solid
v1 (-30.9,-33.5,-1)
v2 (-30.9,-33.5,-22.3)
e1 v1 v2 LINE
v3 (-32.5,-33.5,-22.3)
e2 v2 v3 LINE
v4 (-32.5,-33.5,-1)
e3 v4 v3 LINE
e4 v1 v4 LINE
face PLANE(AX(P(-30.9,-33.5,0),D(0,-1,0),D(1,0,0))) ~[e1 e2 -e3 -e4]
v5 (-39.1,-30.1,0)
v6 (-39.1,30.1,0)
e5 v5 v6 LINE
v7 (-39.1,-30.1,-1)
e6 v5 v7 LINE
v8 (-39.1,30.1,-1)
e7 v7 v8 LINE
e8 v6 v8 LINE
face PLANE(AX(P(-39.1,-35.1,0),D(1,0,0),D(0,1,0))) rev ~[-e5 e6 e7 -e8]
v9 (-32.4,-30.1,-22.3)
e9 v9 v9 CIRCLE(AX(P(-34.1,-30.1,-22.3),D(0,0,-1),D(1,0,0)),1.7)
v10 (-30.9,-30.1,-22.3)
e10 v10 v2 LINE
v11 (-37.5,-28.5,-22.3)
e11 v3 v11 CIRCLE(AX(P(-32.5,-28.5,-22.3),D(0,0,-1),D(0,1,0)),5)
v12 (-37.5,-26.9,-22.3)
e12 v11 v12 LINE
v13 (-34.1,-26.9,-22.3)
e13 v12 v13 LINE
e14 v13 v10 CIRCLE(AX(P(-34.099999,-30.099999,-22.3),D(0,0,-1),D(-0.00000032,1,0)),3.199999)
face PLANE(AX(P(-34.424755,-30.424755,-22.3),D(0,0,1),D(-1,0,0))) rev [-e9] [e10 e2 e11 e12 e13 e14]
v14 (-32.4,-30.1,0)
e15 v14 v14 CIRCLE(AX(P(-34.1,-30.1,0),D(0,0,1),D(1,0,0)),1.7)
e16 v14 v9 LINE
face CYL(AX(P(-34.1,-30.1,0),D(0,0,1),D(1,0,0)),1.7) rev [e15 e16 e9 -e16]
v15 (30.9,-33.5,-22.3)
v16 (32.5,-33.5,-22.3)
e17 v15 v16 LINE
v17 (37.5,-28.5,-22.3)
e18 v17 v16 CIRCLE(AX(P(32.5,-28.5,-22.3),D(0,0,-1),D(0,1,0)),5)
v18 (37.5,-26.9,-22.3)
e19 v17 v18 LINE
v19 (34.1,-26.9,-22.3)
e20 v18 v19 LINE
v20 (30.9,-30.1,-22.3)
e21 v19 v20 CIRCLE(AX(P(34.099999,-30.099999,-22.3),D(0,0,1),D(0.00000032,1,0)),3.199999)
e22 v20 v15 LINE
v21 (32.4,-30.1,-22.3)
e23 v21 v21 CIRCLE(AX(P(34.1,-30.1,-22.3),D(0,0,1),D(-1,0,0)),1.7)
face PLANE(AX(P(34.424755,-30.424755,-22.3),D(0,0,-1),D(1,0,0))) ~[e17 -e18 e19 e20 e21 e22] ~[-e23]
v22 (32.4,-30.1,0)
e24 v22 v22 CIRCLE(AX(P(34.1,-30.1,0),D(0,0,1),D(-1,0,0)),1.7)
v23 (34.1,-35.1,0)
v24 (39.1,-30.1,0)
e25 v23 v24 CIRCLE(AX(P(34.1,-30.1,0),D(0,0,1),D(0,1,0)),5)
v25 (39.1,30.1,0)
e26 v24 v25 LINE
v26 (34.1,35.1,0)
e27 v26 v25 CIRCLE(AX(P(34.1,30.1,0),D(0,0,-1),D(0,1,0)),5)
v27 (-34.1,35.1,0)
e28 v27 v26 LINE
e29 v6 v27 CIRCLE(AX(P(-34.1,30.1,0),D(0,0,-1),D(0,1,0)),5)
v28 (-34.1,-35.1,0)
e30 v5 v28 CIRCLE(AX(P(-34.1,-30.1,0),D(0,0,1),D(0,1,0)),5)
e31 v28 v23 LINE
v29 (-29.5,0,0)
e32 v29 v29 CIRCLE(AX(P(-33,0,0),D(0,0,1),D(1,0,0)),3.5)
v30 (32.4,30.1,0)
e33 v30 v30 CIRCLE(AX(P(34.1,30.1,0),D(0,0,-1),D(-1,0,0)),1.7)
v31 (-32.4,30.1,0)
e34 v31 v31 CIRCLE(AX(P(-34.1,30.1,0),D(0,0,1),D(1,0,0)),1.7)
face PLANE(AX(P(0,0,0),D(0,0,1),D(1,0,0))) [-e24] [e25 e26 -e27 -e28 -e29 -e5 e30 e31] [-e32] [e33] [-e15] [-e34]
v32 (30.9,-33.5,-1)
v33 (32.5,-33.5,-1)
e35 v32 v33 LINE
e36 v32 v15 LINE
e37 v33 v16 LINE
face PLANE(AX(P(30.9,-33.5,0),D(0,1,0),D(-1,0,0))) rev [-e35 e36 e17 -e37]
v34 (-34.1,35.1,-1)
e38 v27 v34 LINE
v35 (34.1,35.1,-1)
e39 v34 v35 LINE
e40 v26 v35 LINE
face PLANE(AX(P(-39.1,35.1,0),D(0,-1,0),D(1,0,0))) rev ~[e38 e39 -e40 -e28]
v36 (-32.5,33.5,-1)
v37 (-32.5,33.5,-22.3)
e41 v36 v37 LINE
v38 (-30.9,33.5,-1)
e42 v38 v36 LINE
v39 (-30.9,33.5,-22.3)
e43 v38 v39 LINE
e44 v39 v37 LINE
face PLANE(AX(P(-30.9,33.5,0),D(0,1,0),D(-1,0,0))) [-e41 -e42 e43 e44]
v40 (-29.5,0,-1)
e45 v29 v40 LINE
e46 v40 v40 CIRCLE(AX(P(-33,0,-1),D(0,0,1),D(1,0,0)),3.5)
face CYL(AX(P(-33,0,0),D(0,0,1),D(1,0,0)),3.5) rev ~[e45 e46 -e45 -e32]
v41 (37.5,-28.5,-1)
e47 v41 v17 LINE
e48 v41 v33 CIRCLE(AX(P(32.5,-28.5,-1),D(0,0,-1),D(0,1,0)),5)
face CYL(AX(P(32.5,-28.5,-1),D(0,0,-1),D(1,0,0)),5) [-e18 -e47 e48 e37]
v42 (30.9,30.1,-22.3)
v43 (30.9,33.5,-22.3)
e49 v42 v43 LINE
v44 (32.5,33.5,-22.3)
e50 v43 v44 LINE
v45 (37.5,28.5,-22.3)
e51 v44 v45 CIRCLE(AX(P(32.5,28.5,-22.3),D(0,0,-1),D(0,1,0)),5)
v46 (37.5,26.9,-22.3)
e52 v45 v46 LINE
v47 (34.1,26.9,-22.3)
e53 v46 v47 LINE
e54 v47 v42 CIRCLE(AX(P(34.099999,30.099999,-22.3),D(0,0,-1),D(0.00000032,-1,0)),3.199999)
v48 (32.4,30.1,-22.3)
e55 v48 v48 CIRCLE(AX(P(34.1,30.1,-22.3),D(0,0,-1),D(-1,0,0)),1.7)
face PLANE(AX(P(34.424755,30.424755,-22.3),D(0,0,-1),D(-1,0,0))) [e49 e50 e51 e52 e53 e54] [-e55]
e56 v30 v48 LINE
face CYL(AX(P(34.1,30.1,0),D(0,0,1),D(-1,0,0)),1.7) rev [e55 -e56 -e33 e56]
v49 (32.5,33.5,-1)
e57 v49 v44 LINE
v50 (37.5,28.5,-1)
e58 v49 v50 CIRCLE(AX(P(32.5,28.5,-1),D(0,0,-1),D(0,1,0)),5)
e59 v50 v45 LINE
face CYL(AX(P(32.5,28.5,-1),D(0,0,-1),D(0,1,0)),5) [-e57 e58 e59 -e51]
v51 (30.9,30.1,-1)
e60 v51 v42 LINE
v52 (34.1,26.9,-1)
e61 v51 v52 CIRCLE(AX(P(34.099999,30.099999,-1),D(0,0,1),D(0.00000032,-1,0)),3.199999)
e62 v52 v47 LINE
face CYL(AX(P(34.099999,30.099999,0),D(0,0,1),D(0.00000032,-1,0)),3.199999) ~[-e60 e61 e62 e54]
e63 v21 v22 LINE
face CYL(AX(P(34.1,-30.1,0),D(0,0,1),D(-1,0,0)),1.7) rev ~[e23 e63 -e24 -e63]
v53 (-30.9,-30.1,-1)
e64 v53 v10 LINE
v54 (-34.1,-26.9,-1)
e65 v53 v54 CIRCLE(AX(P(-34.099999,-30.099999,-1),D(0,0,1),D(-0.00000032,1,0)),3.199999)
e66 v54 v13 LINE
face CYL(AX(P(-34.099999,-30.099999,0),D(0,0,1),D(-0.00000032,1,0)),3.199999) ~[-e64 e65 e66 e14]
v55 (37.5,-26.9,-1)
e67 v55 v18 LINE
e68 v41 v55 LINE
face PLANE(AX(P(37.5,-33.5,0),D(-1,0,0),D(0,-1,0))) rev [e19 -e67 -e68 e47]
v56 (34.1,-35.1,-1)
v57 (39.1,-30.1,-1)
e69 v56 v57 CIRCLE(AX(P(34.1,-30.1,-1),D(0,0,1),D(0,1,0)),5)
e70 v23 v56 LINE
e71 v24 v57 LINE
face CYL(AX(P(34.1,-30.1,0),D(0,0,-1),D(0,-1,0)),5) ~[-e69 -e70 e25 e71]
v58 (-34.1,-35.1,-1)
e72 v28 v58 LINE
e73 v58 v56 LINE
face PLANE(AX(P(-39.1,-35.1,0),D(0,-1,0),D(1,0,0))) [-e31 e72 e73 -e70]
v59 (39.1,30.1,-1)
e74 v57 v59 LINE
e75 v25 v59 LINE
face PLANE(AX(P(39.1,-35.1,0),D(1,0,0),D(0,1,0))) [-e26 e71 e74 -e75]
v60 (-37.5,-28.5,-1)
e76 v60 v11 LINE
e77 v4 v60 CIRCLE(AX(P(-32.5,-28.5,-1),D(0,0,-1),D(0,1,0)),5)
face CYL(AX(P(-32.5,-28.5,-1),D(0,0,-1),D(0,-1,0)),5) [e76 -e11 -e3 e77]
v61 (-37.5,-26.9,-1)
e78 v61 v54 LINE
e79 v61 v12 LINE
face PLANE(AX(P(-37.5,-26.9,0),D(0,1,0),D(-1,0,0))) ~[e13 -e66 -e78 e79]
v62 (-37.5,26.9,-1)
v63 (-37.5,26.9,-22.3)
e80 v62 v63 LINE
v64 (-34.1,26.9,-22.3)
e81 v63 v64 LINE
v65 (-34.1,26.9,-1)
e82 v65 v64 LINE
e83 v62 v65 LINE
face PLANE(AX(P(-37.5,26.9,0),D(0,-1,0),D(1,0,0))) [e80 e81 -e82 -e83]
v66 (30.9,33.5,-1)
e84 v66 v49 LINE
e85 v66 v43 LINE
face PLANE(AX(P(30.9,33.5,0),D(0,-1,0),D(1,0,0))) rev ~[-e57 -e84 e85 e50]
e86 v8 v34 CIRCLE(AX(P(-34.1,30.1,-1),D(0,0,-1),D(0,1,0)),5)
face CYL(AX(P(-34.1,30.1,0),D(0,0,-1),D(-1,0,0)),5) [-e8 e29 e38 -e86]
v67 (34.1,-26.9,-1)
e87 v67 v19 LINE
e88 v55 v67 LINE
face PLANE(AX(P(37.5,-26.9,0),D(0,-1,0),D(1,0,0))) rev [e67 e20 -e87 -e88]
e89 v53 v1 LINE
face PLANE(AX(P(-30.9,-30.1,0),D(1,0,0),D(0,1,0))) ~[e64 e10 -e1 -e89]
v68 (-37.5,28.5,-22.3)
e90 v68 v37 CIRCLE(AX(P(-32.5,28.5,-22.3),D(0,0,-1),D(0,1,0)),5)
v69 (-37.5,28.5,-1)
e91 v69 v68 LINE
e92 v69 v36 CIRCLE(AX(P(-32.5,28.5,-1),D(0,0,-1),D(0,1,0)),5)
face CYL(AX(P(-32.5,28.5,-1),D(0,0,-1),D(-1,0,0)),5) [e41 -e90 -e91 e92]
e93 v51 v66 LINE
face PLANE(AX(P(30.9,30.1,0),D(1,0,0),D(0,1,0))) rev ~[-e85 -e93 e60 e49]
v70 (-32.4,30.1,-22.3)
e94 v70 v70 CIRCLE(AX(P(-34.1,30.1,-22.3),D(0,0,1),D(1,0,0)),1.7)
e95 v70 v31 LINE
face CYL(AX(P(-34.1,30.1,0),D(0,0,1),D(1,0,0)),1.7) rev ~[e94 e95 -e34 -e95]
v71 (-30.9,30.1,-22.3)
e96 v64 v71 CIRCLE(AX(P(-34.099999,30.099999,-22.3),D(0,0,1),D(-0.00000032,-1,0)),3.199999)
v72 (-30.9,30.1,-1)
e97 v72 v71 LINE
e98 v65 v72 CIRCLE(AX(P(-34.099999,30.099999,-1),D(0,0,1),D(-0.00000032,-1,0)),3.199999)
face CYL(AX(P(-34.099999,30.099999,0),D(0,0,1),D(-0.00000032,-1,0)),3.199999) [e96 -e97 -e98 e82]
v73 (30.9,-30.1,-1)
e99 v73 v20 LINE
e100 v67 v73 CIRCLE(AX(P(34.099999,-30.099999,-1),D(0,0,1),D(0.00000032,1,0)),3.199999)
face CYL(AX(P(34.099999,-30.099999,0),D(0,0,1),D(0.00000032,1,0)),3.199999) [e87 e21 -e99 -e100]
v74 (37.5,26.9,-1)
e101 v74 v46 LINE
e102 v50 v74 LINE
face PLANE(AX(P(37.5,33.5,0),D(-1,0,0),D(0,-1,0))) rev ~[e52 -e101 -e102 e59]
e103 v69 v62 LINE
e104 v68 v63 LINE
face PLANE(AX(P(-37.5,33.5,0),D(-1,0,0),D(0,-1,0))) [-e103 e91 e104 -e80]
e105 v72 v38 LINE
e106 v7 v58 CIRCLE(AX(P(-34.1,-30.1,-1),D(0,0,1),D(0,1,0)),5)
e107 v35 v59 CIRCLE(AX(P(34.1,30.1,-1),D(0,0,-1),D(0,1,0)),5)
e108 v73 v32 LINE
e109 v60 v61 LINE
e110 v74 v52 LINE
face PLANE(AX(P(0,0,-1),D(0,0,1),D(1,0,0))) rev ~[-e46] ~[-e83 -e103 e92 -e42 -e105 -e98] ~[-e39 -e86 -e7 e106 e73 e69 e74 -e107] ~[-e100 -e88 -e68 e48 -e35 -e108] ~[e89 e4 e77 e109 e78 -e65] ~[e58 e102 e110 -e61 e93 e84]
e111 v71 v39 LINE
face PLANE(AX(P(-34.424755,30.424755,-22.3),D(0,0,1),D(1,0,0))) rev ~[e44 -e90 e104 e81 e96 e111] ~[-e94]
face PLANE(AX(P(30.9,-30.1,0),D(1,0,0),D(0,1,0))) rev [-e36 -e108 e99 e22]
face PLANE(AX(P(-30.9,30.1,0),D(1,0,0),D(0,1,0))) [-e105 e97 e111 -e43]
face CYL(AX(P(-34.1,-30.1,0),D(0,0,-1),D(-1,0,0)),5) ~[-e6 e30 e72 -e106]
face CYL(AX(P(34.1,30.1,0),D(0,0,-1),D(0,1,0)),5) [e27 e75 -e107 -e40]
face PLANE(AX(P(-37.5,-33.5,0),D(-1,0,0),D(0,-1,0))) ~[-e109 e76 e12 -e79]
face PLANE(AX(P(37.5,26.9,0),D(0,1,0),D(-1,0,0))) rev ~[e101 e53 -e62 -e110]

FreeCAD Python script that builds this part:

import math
import FreeCAD as App
import Part
import Sketcher
from FreeCAD import Vector


def edges_at(feature, points):
    """Names of the edges that pass closest to the given points."""
    edges = feature.Shape.Edges
    near = lambda p: min(range(len(edges)), key=lambda i: edges[i].distToShape(Part.Vertex(*p))[0])
    return sorted({f"Edge{near(p) + 1}" for p in points})

doc = App.newDocument("Part")
body = doc.addObject("PartDesign::Body", "Body")

# Sketch on XY plane
sketch1 = doc.addObject("Sketcher::SketchObject", "Sketch")
body.addObject(sketch1)
sketch1.AttachmentSupport = (doc.XY_Plane, [""])
sketch1.MapMode = "FlatFace"
sketch1.addGeometry(Part.LineSegment(Vector(-39.1, 35.1, 0), Vector(-39.1, -35.1, 0)), False)
sketch1.addGeometry(Part.LineSegment(Vector(-39.1, -35.1, 0), Vector(39.1, -35.1, 0)), False)
sketch1.addGeometry(Part.LineSegment(Vector(39.1, -35.1, 0), Vector(39.1, 35.1, 0)), False)
sketch1.addGeometry(Part.LineSegment(Vector(39.1, 35.1, 0), Vector(-39.1, 35.1, 0)), False)
sketch1.addConstraint(Sketcher.Constraint("Coincident", 0, 2, 1, 1))
sketch1.addConstraint(Sketcher.Constraint("Coincident", 1, 2, 2, 1))
sketch1.addConstraint(Sketcher.Constraint("Coincident", 2, 2, 3, 1))
sketch1.addConstraint(Sketcher.Constraint("Coincident", 3, 2, 0, 1))
sketch1.addConstraint(Sketcher.Constraint("Vertical", 0))
sketch1.addConstraint(Sketcher.Constraint("Horizontal", 1))
sketch1.addConstraint(Sketcher.Constraint("Vertical", 2))
sketch1.addConstraint(Sketcher.Constraint("Horizontal", 3))
sketch1.addConstraint(Sketcher.Constraint("Symmetric", 0, 2, 2, 2, -1, 1))
sketch1.addConstraint(Sketcher.Constraint("DistanceX", 1, 1, 1, 2, 78.2))
sketch1.addConstraint(Sketcher.Constraint("DistanceY", 0, 2, 0, 1, 70.2))
pad1 = doc.addObject("PartDesign::Pad", "Pad")
body.addObject(pad1)
pad1.Profile = sketch1
pad1.Length = 1
pad1.Reversed = True

# Sketch on XY plane
sketch2 = doc.addObject("Sketcher::SketchObject", "Sketch001")
body.addObject(sketch2)
sketch2.AttachmentSupport = (doc.XY_Plane, [""])
sketch2.MapMode = "FlatFace"
sketch2.addGeometry(Part.Circle(Vector(-34.1, 30.1, 0), Vector(0, 0, 1), 1.7), False)
sketch2.addConstraint(Sketcher.Constraint("Diameter", 0, 3.4))
sketch2.addConstraint(Sketcher.Constraint("DistanceX", 0, 3, -1, 1, 34.1))
sketch2.addConstraint(Sketcher.Constraint("DistanceY", -1, 1, 0, 3, 30.1))
pocket1 = doc.addObject("PartDesign::Pocket", "Pocket")
body.addObject(pocket1)
pocket1.Profile = sketch2
pocket1.Type = "ThroughAll"
pocket1.Midplane = True

# Sketch on XY plane
sketch3 = doc.addObject("Sketcher::SketchObject", "Sketch002")
body.addObject(sketch3)
sketch3.AttachmentSupport = (doc.XY_Plane, [""])
sketch3.MapMode = "FlatFace"
sketch3.addGeometry(Part.Circle(Vector(34.1, 30.1, 0), Vector(0, 0, 1), 1.7), False)
sketch3.addConstraint(Sketcher.Constraint("Diameter", 0, 3.4))
sketch3.addConstraint(Sketcher.Constraint("DistanceX", -1, 1, 0, 3, 34.1))
sketch3.addConstraint(Sketcher.Constraint("DistanceY", -1, 1, 0, 3, 30.1))
pocket2 = doc.addObject("PartDesign::Pocket", "Pocket001")
body.addObject(pocket2)
pocket2.Profile = sketch3
pocket2.Length = 211.184539
pocket3 = doc.addObject("PartDesign::Pocket", "Pocket002")
body.addObject(pocket3)
pocket3.Profile = sketch3
pocket3.Length = 210.184539
doc.recompute()

mirrored = doc.addObject("PartDesign::Mirrored", "Mirrored")
body.addObject(mirrored)
mirrored.Originals = [pocket1, pocket2, pocket3]
mirrored.MirrorPlane = (doc.XZ_Plane, [""])
body.Tip = mirrored

# Sketch on XY plane
sketch4 = doc.addObject("Sketcher::SketchObject", "Sketch003")
body.addObject(sketch4)
sketch4.AttachmentSupport = (doc.XY_Plane, [""])
sketch4.MapMode = "FlatFace"
sketch4.addGeometry(Part.ArcOfCircle(Part.Circle(Vector(-34.099999, 30.099999, 0), Vector(0, 0, 1), 3.199999), math.radians(-90.000018), math.radians(0.000018)), False)
sketch4.addGeometry(Part.LineSegment(Vector(-30.9, 30.1, 0), Vector(-30.9, 33.5, 0)), False)
sketch4.addGeometry(Part.LineSegment(Vector(-30.9, 33.5, 0), Vector(-37.5, 33.5, 0)), False)
sketch4.addGeometry(Part.LineSegment(Vector(-37.5, 33.5, 0), Vector(-37.5, 26.9, 0)), False)
sketch4.addGeometry(Part.LineSegment(Vector(-37.5, 26.9, 0), Vector(-34.1, 26.9, 0)), False)
sketch4.addGeometry(Part.Circle(Vector(-34.1, 30.1, 0), Vector(0, 0, 1), 1.7), False)
sketch4.addConstraint(Sketcher.Constraint("Tangent", 0, 2, 1, 1))
sketch4.addConstraint(Sketcher.Constraint("Coincident", 1, 2, 2, 1))
sketch4.addConstraint(Sketcher.Constraint("Coincident", 2, 2, 3, 1))
sketch4.addConstraint(Sketcher.Constraint("Coincident", 3, 2, 4, 1))
sketch4.addConstraint(Sketcher.Constraint("Tangent", 4, 2, 0, 1))
sketch4.addConstraint(Sketcher.Constraint("Vertical", 1))
sketch4.addConstraint(Sketcher.Constraint("Horizontal", 2))
sketch4.addConstraint(Sketcher.Constraint("Vertical", 3))
sketch4.addConstraint(Sketcher.Constraint("Horizontal", 4))
sketch4.addConstraint(Sketcher.Constraint("Coincident", 5, 3, 0, 3))
sketch4.addConstraint(Sketcher.Constraint("Equal", 4, 1))
sketch4.addConstraint(Sketcher.Constraint("Diameter", 5, 3.4))
sketch4.addConstraint(Sketcher.Constraint("Radius", 0, 3.199999))
sketch4.addConstraint(Sketcher.Constraint("DistanceX", 2, 2, 2, 1, 6.6))
sketch4.addConstraint(Sketcher.Constraint("DistanceX", 0, 3, -1, 1, 34.099999))
sketch4.addConstraint(Sketcher.Constraint("DistanceY", -1, 1, 0, 3, 30.099999))
pad2 = doc.addObject("PartDesign::Pad", "Pad001")
body.addObject(pad2)
pad2.Profile = sketch4
pad2.Length = 22.3
pad2.Reversed = True

# Sketch on XY plane
sketch5 = doc.addObject("Sketcher::SketchObject", "Sketch004")
body.addObject(sketch5)
sketch5.AttachmentSupport = (doc.XY_Plane, [""])
sketch5.MapMode = "FlatFace"
sketch5.addGeometry(Part.ArcOfCircle(Part.Circle(Vector(34.099999, 30.099999, 0), Vector(0, 0, 1), 3.199999), math.radians(179.999982), math.radians(270.000018)), False)
sketch5.addGeometry(Part.LineSegment(Vector(30.9, 30.1, 0), Vector(30.9, 33.5, 0)), False)
sketch5.addGeometry(Part.LineSegment(Vector(30.9, 33.5, 0), Vector(37.5, 33.5, 0)), False)
sketch5.addGeometry(Part.LineSegment(Vector(37.5, 33.5, 0), Vector(37.5, 26.9, 0)), False)
sketch5.addGeometry(Part.LineSegment(Vector(37.5, 26.9, 0), Vector(34.1, 26.9, 0)), False)
sketch5.addGeometry(Part.Circle(Vector(34.1, 30.1, 0), Vector(0, 0, 1), 1.7), False)
sketch5.addConstraint(Sketcher.Constraint("Tangent", 0, 1, 1, 1))
sketch5.addConstraint(Sketcher.Constraint("Coincident", 1, 2, 2, 1))
sketch5.addConstraint(Sketcher.Constraint("Coincident", 2, 2, 3, 1))
sketch5.addConstraint(Sketcher.Constraint("Coincident", 3, 2, 4, 1))
sketch5.addConstraint(Sketcher.Constraint("Tangent", 4, 2, 0, 2))
sketch5.addConstraint(Sketcher.Constraint("Vertical", 1))
sketch5.addConstraint(Sketcher.Constraint("Horizontal", 2))
sketch5.addConstraint(Sketcher.Constraint("Vertical", 3))
sketch5.addConstraint(Sketcher.Constraint("Horizontal", 4))
sketch5.addConstraint(Sketcher.Constraint("Coincident", 5, 3, 0, 3))
sketch5.addConstraint(Sketcher.Constraint("Equal", 4, 1))
sketch5.addConstraint(Sketcher.Constraint("Diameter", 5, 3.4))
sketch5.addConstraint(Sketcher.Constraint("Radius", 0, 3.199999))
sketch5.addConstraint(Sketcher.Constraint("DistanceX", 2, 1, 2, 2, 6.6))
sketch5.addConstraint(Sketcher.Constraint("DistanceX", -1, 1, 0, 3, 34.099999))
sketch5.addConstraint(Sketcher.Constraint("DistanceY", -1, 1, 0, 3, 30.099999))
pad3 = doc.addObject("PartDesign::Pad", "Pad002")
body.addObject(pad3)
pad3.Profile = sketch5
pad3.Length = 22.3
pad3.Reversed = True
doc.recompute()

mirrored2 = doc.addObject("PartDesign::Mirrored", "Mirrored001")
body.addObject(mirrored2)
mirrored2.Originals = [pad2, pad3]
mirrored2.MirrorPlane = (doc.XZ_Plane, [""])
body.Tip = mirrored2

# Sketch on XY plane
sketch6 = doc.addObject("Sketcher::SketchObject", "Sketch005")
body.addObject(sketch6)
sketch6.AttachmentSupport = (doc.XY_Plane, [""])
sketch6.MapMode = "FlatFace"
sketch6.addGeometry(Part.Circle(Vector(-33, 0, 0), Vector(0, 0, 1), 3.5), False)
sketch6.addConstraint(Sketcher.Constraint("PointOnObject", 0, 3, -1))
sketch6.addConstraint(Sketcher.Constraint("Diameter", 0, 7.0))
sketch6.addConstraint(Sketcher.Constraint("DistanceX", 0, 3, -1, 1, 33.0))
pocket4 = doc.addObject("PartDesign::Pocket", "Pocket003")
body.addObject(pocket4)
pocket4.Profile = sketch6
pocket4.Length = 5
doc.recompute()

fillet = doc.addObject("PartDesign::Fillet", "Fillet")
body.addObject(fillet)
fillet.Base = (pocket4, edges_at(pocket4, [
    (37.5, 33.5, -11.65),
    (39.1, 35.1, -0.5),
    (37.5, -33.5, -11.65),
    (39.1, -35.1, -0.5),
    (-39.1, -35.1, -0.5),
    (-37.5, -33.5, -11.65),
    (-37.5, 33.5, -11.65),
    (-39.1, 35.1, -0.5),
]))
fillet.Radius = 5

doc.recompute()
